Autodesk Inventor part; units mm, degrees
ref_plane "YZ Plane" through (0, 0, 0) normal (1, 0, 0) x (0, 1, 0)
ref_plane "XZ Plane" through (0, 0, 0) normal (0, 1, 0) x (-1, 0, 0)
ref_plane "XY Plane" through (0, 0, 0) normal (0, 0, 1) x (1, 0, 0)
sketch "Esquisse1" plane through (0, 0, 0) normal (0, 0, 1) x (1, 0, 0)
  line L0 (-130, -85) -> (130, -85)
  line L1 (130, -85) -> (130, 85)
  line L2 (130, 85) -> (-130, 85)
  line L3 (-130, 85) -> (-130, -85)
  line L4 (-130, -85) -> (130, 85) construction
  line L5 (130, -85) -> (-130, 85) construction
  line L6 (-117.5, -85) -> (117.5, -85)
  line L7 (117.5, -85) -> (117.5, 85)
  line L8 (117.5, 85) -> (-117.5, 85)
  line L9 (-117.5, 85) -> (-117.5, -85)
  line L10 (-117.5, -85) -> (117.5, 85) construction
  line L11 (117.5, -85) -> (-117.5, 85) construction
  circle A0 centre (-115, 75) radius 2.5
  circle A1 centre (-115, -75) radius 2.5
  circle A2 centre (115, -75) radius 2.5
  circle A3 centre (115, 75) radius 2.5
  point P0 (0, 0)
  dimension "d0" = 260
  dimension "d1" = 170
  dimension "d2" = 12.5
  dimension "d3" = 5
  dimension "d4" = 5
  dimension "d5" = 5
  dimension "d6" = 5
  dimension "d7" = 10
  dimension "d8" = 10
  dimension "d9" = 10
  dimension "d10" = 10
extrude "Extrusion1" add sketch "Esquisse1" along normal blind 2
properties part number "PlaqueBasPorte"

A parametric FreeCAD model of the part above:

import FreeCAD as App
import Part
import Sketcher

V = App.Vector

doc = App.newDocument("Part")
body = doc.addObject("PartDesign::Body", "Body")

# Sketch on XY plane
sketch1 = doc.addObject("Sketcher::SketchObject", "Sketch")
body.addObject(sketch1)
sketch1.AttachmentSupport = (doc.XY_Plane, [""])
sketch1.MapMode = "FlatFace"
sketch1.addGeometry(Part.LineSegment(V(-130, 85, 0), V(-130, -85, 0)), False)
sketch1.addGeometry(Part.LineSegment(V(-130, -85, 0), V(130, -85, 0)), False)
sketch1.addGeometry(Part.LineSegment(V(130, -85, 0), V(130, 85, 0)), False)
sketch1.addGeometry(Part.LineSegment(V(130, 85, 0), V(-130, 85, 0)), False)
sketch1.addGeometry(Part.Circle(V(-115, 75, 0), V(0, 0, 1), 2.5), False)
sketch1.addGeometry(Part.Circle(V(115, 75, 0), V(0, 0, 1), 2.5), False)
sketch1.addGeometry(Part.Circle(V(-115, -75, 0), V(0, 0, 1), 2.5), False)
sketch1.addGeometry(Part.Circle(V(115, -75, 0), V(0, 0, 1), 2.5), False)
sketch1.addConstraint(Sketcher.Constraint("Coincident", 0, 2, 1, 1))
sketch1.addConstraint(Sketcher.Constraint("Coincident", 1, 2, 2, 1))
sketch1.addConstraint(Sketcher.Constraint("Coincident", 2, 2, 3, 1))
sketch1.addConstraint(Sketcher.Constraint("Coincident", 3, 2, 0, 1))
sketch1.addConstraint(Sketcher.Constraint("Vertical", 0))
sketch1.addConstraint(Sketcher.Constraint("Horizontal", 1))
sketch1.addConstraint(Sketcher.Constraint("Vertical", 2))
sketch1.addConstraint(Sketcher.Constraint("Horizontal", 3))
sketch1.addConstraint(Sketcher.Constraint("Equal", 4, 5))
sketch1.addConstraint(Sketcher.Constraint("Equal", 5, 6))
sketch1.addConstraint(Sketcher.Constraint("Equal", 6, 7))
sketch1.addConstraint(Sketcher.Constraint("Symmetric", 5, 3, 6, 3, -1, 1))
sketch1.addConstraint(Sketcher.Constraint("Symmetric", 4, 3, 7, 3, -1, 1))
sketch1.addConstraint(Sketcher.Constraint("Symmetric", 0, 2, 2, 2, -1, 1))
sketch1.addConstraint(Sketcher.Constraint("Symmetric", 4, 3, 5, 3, -2))
sketch1.addConstraint(Sketcher.Constraint("Diameter", 4, 5.0))
sketch1.addConstraint(Sketcher.Constraint("DistanceX", 1, 1, 1, 2, 260.0))
sketch1.addConstraint(Sketcher.Constraint("DistanceY", 0, 2, 0, 1, 170.0))
sketch1.addConstraint(Sketcher.Constraint("DistanceY", 0, 2, 6, 3, 10.0))
sketch1.addConstraint(Sketcher.Constraint("DistanceX", 4, 3, -1, 1, 115.0))
pad1 = doc.addObject("PartDesign::Pad", "Pad")
body.addObject(pad1)
pad1.Profile = sketch1
pad1.Length = 2

doc.recompute()
